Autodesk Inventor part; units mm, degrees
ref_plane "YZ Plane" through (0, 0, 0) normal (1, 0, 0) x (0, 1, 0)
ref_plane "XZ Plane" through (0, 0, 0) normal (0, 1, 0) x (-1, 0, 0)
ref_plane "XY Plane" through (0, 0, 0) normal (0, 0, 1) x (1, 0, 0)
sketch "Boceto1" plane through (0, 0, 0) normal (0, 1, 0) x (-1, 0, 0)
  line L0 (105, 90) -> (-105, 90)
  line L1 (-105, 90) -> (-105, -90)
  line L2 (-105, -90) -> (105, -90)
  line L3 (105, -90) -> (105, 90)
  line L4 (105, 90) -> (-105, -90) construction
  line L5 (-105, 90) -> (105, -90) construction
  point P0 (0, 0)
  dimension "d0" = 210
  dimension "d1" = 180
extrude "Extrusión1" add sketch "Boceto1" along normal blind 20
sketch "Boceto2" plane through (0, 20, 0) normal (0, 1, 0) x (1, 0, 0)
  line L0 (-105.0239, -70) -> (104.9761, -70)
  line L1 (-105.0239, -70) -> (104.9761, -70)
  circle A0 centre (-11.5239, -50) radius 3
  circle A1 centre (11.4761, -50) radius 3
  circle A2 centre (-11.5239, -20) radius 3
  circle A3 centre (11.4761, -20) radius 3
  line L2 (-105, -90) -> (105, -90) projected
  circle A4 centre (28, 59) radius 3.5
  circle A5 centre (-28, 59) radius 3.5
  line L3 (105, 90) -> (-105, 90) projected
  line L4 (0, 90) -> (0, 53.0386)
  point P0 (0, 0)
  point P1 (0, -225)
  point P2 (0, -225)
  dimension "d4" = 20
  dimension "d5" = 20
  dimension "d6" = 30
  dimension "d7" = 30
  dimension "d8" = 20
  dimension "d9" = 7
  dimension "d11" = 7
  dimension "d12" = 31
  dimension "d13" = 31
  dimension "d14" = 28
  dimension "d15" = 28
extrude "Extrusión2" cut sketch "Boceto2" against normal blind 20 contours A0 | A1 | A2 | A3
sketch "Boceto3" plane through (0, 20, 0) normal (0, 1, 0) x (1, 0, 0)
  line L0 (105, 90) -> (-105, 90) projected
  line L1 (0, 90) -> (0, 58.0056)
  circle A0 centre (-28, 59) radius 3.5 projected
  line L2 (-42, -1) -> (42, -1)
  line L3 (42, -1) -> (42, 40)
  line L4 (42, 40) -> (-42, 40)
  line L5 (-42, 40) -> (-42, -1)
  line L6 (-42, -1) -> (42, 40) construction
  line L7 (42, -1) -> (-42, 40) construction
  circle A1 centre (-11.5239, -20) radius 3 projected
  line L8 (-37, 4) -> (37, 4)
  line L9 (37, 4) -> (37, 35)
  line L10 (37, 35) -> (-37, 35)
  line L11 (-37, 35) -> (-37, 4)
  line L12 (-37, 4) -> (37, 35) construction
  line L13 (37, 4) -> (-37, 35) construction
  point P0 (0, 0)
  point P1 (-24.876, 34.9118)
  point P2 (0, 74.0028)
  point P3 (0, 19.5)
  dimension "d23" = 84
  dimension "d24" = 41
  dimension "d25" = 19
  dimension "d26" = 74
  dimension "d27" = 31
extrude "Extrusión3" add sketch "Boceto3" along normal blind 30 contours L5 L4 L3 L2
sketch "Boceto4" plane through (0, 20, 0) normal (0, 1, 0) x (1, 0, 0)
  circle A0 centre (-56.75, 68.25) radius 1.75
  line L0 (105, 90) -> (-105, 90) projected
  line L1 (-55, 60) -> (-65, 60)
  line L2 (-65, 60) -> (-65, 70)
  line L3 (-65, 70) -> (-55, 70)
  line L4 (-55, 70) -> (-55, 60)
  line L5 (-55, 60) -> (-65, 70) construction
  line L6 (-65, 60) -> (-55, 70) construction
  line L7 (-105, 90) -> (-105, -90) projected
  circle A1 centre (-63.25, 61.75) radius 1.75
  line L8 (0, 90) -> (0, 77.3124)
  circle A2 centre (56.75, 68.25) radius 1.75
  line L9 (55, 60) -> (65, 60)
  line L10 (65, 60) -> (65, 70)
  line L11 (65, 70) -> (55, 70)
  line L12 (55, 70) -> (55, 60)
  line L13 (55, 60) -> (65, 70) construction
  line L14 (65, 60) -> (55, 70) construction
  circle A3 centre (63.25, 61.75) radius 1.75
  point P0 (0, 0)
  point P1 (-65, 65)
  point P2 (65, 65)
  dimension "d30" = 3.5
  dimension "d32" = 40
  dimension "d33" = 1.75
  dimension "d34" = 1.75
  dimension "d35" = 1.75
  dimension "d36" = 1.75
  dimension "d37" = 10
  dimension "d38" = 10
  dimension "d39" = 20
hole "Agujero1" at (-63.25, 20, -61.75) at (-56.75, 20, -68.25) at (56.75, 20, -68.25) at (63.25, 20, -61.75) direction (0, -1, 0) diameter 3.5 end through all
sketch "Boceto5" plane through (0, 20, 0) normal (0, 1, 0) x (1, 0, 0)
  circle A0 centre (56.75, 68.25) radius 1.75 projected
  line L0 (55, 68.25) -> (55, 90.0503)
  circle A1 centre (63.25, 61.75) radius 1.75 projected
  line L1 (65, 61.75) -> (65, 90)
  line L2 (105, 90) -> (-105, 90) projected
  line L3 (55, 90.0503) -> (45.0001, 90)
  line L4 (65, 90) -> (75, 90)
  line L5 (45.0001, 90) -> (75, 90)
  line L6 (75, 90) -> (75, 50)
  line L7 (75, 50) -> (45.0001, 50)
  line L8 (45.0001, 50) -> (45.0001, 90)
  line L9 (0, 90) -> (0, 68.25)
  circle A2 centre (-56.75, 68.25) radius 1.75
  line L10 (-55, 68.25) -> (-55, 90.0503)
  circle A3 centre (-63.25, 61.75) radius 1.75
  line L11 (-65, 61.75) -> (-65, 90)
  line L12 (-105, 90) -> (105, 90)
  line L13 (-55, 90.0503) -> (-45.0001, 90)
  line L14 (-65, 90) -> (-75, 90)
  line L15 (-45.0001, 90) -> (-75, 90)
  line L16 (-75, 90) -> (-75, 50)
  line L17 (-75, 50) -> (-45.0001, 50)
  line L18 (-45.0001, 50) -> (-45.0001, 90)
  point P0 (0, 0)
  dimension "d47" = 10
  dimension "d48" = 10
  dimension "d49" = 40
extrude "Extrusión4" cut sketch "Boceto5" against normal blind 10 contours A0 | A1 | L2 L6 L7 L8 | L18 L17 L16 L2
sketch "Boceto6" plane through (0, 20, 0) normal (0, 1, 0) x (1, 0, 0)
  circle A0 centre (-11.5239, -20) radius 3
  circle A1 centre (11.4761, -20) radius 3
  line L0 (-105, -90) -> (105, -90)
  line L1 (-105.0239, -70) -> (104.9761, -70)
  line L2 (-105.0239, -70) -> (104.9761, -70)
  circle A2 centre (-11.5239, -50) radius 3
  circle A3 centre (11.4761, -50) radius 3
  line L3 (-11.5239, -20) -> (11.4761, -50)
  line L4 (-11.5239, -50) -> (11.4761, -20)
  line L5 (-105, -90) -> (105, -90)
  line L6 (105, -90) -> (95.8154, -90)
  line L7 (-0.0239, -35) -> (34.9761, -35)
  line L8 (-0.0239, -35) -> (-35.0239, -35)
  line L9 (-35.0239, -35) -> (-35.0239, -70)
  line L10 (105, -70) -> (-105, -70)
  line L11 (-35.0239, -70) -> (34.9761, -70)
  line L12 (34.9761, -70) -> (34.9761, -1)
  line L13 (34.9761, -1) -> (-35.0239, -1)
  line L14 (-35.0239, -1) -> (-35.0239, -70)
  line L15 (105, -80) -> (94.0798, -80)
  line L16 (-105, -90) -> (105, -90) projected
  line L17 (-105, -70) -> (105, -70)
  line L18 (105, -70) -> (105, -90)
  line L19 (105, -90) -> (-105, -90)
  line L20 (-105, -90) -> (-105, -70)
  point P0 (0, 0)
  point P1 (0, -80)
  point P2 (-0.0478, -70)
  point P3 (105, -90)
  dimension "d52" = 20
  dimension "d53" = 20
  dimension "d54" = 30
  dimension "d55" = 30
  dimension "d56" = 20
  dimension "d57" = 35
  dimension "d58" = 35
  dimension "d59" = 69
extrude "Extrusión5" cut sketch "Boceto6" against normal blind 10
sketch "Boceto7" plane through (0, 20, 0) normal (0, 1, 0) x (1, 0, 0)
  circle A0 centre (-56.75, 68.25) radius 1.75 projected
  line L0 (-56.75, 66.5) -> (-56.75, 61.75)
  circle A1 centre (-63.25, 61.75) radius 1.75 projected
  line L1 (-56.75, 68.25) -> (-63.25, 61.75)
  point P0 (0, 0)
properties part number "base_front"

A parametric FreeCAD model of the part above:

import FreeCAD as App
import Part
import Sketcher
from FreeCAD import Vector


def add_polygon(sketch, points):
    """Adds a closed chain of lines whose ends are joined by coincident constraints."""
    first, n = sketch.GeometryCount, len(points)
    for a, b in zip(points, points[1:] + points[:1]):
        sketch.addGeometry(Part.LineSegment(App.Vector(*a, 0), App.Vector(*b, 0)), False)
    for i in range(n):
        sketch.addConstraint(Sketcher.Constraint("Coincident", first + i, 2, first + (i + 1) % n, 1))

doc = App.newDocument("Part")
params = doc.addObject("Spreadsheet::Sheet", "Params")
for row, (alias, value) in enumerate([
    ("sketch1_width", "210 mm"),
    ("sketch1_height", "180 mm"),
    ("pad1_length", "20 mm"),
    ("sketch2_diameter", "6 mm"),
    ("pocket1_length", "20 mm"),
    ("sketch3_width", "84 mm"),
    ("sketch3_width2", "74 mm"),
    ("sketch3_height", "41 mm"),
    ("sketch3_height2", "31 mm"),
    ("pad2_length", "30 mm"),
    ("sketch4_diameter", "3.5 mm"),
    ("hole_diameter", "3.5 mm"),
    ("sketch5_width", "10 mm"),
    ("sketch5_height", "40 mm"),
    ("sketch5_diameter", "3.5 mm"),
    ("pocket2_length", "10 mm"),
    ("sketch6_height", "69 mm"),
    ("sketch6_height2", "20 mm"),
    ("sketch6_diameter", "6 mm"),
    ("sketch6_width", "210 mm"),
    ("sketch6_width2", "70 mm"),
    ("pocket3_length", "10 mm"),
], start=1):
    params.set(f"A{row}", alias)
    params.set(f"B{row}", "=" + value)
    params.setAlias(f"B{row}", alias)

body = doc.addObject("PartDesign::Body", "Body")

sketch1 = doc.addObject("Sketcher::SketchObject", "Sketch")
body.addObject(sketch1)
sketch1.AttachmentSupport = (doc.XZ_Plane, [""])
sketch1.MapMode = "FlatFace"
add_polygon(sketch1, [(-105, -90), (-105, 90), (105, 90), (105, -90)])
sketch1.addConstraint([
    Sketcher.Constraint("Vertical", 0),
    Sketcher.Constraint("Horizontal", 1),
    Sketcher.Constraint("Vertical", 2),
    Sketcher.Constraint("Horizontal", 3),
    Sketcher.Constraint("Symmetric", 0, 2, 2, 2, -1, 1),
    Sketcher.Constraint("DistanceX", 1, 1, 1, 2, 210.0),
    Sketcher.Constraint("DistanceY", 0, 1, 0, 2, 180.0),
])
sketch1.setExpression("Constraints[9]", "Params.sketch1_width")
sketch1.setExpression("Constraints[10]", "Params.sketch1_height")
pad1 = doc.addObject("PartDesign::Pad", "Pad")
body.addObject(pad1)
pad1.Profile = sketch1
pad1.setExpression("Length", "Params.pad1_length")
pad1.Reversed = True

sketch2 = doc.addObject("Sketcher::SketchObject", "Sketch001")
body.addObject(sketch2)
sketch2.AttachmentSupport = (doc.XZ_Plane, [""])
sketch2.MapMode = "FlatFace"
sketch2.AttachmentOffset = App.Placement(Vector(0, 0, -20), App.Rotation())
sketch2.addGeometry([
    Part.Circle(Vector(-11.5239, 50, 0), Vector(0, 0, 1), 3),
    Part.Circle(Vector(11.4761, 50, 0), Vector(0, 0, 1), 3),
    Part.Circle(Vector(-11.5239, 20, 0), Vector(0, 0, 1), 3),
    Part.Circle(Vector(11.4761, 20, 0), Vector(0, 0, 1), 3),
], False)
sketch2.addConstraint([
    Sketcher.Constraint("Equal", 0, 1),
    Sketcher.Constraint("Equal", 1, 2),
    Sketcher.Constraint("Equal", 2, 3),
    Sketcher.Constraint("Horizontal", 0, 3, 1, 3),
    Sketcher.Constraint("Horizontal", 2, 3, 3, 3),
    Sketcher.Constraint("Vertical", 0, 3, 2, 3),
    Sketcher.Constraint("Vertical", 1, 3, 3, 3),
    Sketcher.Constraint("Diameter", 0, 6.0),
    Sketcher.Constraint("DistanceY", -1, 1, 2, 3, 20.0),
    Sketcher.Constraint("DistanceY", 2, 3, 0, 3, 30.0),
    Sketcher.Constraint("DistanceX", 0, 3, 1, 3, 23.0),
    Sketcher.Constraint("DistanceX", 0, 3, -1, 1, 11.524),
])
sketch2.setExpression("Constraints[7]", "Params.sketch2_diameter")
pocket1 = doc.addObject("PartDesign::Pocket", "Pocket")
body.addObject(pocket1)
pocket1.Profile = sketch2
pocket1.setExpression("Length", "Params.pocket1_length")
pocket1.Reversed = True

sketch3 = doc.addObject("Sketcher::SketchObject", "Sketch002")
body.addObject(sketch3)
sketch3.AttachmentSupport = (doc.XZ_Plane, [""])
sketch3.MapMode = "FlatFace"
sketch3.AttachmentOffset = App.Placement(Vector(0, 0, -20), App.Rotation())
add_polygon(sketch3, [(-42, -40), (-42, 1), (42, 1), (42, -40)])
add_polygon(sketch3, [(37, -4), (-37, -4), (-37, -35), (37, -35)])
sketch3.addConstraint([
    Sketcher.Constraint("Vertical", 0),
    Sketcher.Constraint("Horizontal", 1),
    Sketcher.Constraint("Vertical", 2),
    Sketcher.Constraint("Horizontal", 3),
    Sketcher.Constraint("Horizontal", 4),
    Sketcher.Constraint("Vertical", 5),
    Sketcher.Constraint("Horizontal", 6),
    Sketcher.Constraint("Vertical", 7),
    Sketcher.Constraint("DistanceX", 1, 1, 1, 2, 84.0),
    Sketcher.Constraint("DistanceX", 4, 2, 4, 1, 74.0),
    Sketcher.Constraint("DistanceY", 0, 1, 0, 2, 41.0),
    Sketcher.Constraint("DistanceY", 5, 2, 5, 1, 31.0),
    Sketcher.Constraint("DistanceX", 0, 2, -1, 1, 42.0),
    Sketcher.Constraint("DistanceY", -1, 1, 0, 2, 1.0),
    Sketcher.Constraint("DistanceX", 4, 2, -1, 1, 37.0),
    Sketcher.Constraint("DistanceY", 4, 2, -1, 1, 4.0),
])
sketch3.setExpression("Constraints[16]", "Params.sketch3_width")
sketch3.setExpression("Constraints[17]", "Params.sketch3_width2")
sketch3.setExpression("Constraints[18]", "Params.sketch3_height")
sketch3.setExpression("Constraints[19]", "Params.sketch3_height2")
pad2 = doc.addObject("PartDesign::Pad", "Pad001")
body.addObject(pad2)
pad2.Profile = sketch3
pad2.setExpression("Length", "Params.pad2_length")
pad2.Reversed = True

sketch4 = doc.addObject("Sketcher::SketchObject", "Sketch003")
body.addObject(sketch4)
sketch4.AttachmentSupport = (doc.XZ_Plane, [""])
sketch4.MapMode = "FlatFace"
sketch4.AttachmentOffset = App.Placement(Vector(0, 0, -20), App.Rotation())
sketch4.addGeometry([
    Part.Circle(Vector(-63.25, -61.75, 0), Vector(0, 0, 1), 1.75),
    Part.Circle(Vector(-56.75, -68.25, 0), Vector(0, 0, 1), 1.75),
    Part.Circle(Vector(56.75, -68.25, 0), Vector(0, 0, 1), 1.75),
    Part.Circle(Vector(63.25, -61.75, 0), Vector(0, 0, 1), 1.75),
], False)
sketch4.addConstraint([
    Sketcher.Constraint("Equal", 0, 1),
    Sketcher.Constraint("Equal", 1, 2),
    Sketcher.Constraint("Equal", 2, 3),
    Sketcher.Constraint("Symmetric", 1, 3, 2, 3, -2),
    Sketcher.Constraint("Symmetric", 0, 3, 3, 3, -2),
    Sketcher.Constraint("Diameter", 0, 3.5),
    Sketcher.Constraint("DistanceX", 0, 3, 2, 3, 120.0),
    Sketcher.Constraint("DistanceX", 0, 3, 1, 3, 6.5),
    Sketcher.Constraint("DistanceY", 1, 3, 0, 3, 6.5),
    Sketcher.Constraint("DistanceY", 0, 3, -1, 1, 61.75),
])
sketch4.setExpression("Constraints[5]", "Params.sketch4_diameter")
doc.recompute()
hole = doc.addObject("PartDesign::Hole", "Hole")
body.addObject(hole)
hole.Profile = sketch4
hole.ThreadType = "None"
hole.setExpression("Diameter", "Params.hole_diameter")
hole.DepthType = "ThroughAll"
hole.Reversed = True

sketch5 = doc.addObject("Sketcher::SketchObject", "Sketch004")
body.addObject(sketch5)
sketch5.AttachmentSupport = (doc.XZ_Plane, [""])
sketch5.MapMode = "FlatFace"
sketch5.AttachmentOffset = App.Placement(Vector(0, 0, -20), App.Rotation())
add_polygon(sketch5, [(65, -90), (55, -90), (45.0001, -90), (45.0001, -50), (75, -50), (75, -90)])
add_polygon(sketch5, [(-45.0001, -50), (-45.0001, -90), (-55, -90), (-65, -90), (-75, -90), (-75, -50)])
sketch5.addGeometry(Part.Circle(Vector(-63.25, -61.75, 0), Vector(0, 0, 1), 1.75), False)
sketch5.addGeometry(Part.Circle(Vector(-56.75, -68.25, 0), Vector(0, 0, 1), 1.75), False)
sketch5.addConstraint([
    Sketcher.Constraint("Horizontal", 0),
    Sketcher.Constraint("Horizontal", 1),
    Sketcher.Constraint("Vertical", 2),
    Sketcher.Constraint("Horizontal", 3),
    Sketcher.Constraint("Vertical", 4),
    Sketcher.Constraint("Horizontal", 5),
    Sketcher.Constraint("Vertical", 6),
    Sketcher.Constraint("Horizontal", 7),
    Sketcher.Constraint("Horizontal", 8),
    Sketcher.Constraint("Horizontal", 9),
    Sketcher.Constraint("Vertical", 10),
    Sketcher.Constraint("Horizontal", 11),
    Sketcher.Constraint("Equal", 12, 13),
    Sketcher.Constraint("Symmetric", 1, 2, 6, 2, -2),
    Sketcher.Constraint("Symmetric", 3, 2, 10, 2, -2),
    Sketcher.Constraint("Equal", 0, 1),
    Sketcher.Constraint("Equal", 1, 5),
    Sketcher.Constraint("Equal", 5, 7),
    Sketcher.Constraint("Equal", 7, 8),
    Sketcher.Constraint("DistanceX", 0, 2, 0, 1, 10.0),
    Sketcher.Constraint("DistanceY", 2, 1, 2, 2, 40.0),
    Sketcher.Constraint("Diameter", 12, 3.5),
    Sketcher.Constraint("DistanceX", -1, 1, 0, 2, 55.0),
    Sketcher.Constraint("DistanceY", 0, 2, -1, 1, 90.0),
    Sketcher.Constraint("DistanceX", 12, 3, 13, 3, 6.5),
    Sketcher.Constraint("DistanceY", 13, 3, 12, 3, 6.5),
    Sketcher.Constraint("DistanceX", 12, 3, -1, 1, 63.25),
    Sketcher.Constraint("DistanceY", 12, 3, -1, 1, 61.75),
])
sketch5.setExpression("Constraints[31]", "Params.sketch5_width")
sketch5.setExpression("Constraints[32]", "Params.sketch5_height")
sketch5.setExpression("Constraints[33]", "Params.sketch5_diameter")
pocket2 = doc.addObject("PartDesign::Pocket", "Pocket001")
body.addObject(pocket2)
pocket2.Profile = sketch5
pocket2.setExpression("Length", "Params.pocket2_length")
pocket2.Reversed = True

sketch6 = doc.addObject("Sketcher::SketchObject", "Sketch005")
body.addObject(sketch6)
sketch6.AttachmentSupport = (doc.XZ_Plane, [""])
sketch6.MapMode = "FlatFace"
sketch6.AttachmentOffset = App.Placement(Vector(0, 0, -20), App.Rotation())
add_polygon(sketch6, [(-35.0239, 1), (-35.0239, 70), (-105, 70), (-105, 90), (105, 90), (105, 70), (34.9761, 70), (34.9761, 1)])
sketch6.addGeometry(Part.Circle(Vector(-11.5239, 20, 0), Vector(0, 0, 1), 3), False)
sketch6.addGeometry(Part.Circle(Vector(11.4761, 20, 0), Vector(0, 0, 1), 3), False)
sketch6.addGeometry(Part.Circle(Vector(-11.5239, 50, 0), Vector(0, 0, 1), 3), False)
sketch6.addGeometry(Part.Circle(Vector(11.4761, 50, 0), Vector(0, 0, 1), 3), False)
sketch6.addConstraint([
    Sketcher.Constraint("Vertical", 0),
    Sketcher.Constraint("Horizontal", 1),
    Sketcher.Constraint("Vertical", 2),
    Sketcher.Constraint("Horizontal", 3),
    Sketcher.Constraint("Vertical", 4),
    Sketcher.Constraint("Horizontal", 5),
    Sketcher.Constraint("Vertical", 6),
    Sketcher.Constraint("Horizontal", 7),
    Sketcher.Constraint("Equal", 8, 9),
    Sketcher.Constraint("Equal", 9, 10),
    Sketcher.Constraint("Equal", 10, 11),
    Sketcher.Constraint("Symmetric", 1, 2, 4, 2, -2),
    Sketcher.Constraint("Horizontal", 8, 3, 9, 3),
    Sketcher.Constraint("Horizontal", 10, 3, 11, 3),
    Sketcher.Constraint("Vertical", 8, 3, 10, 3),
    Sketcher.Constraint("Vertical", 9, 3, 11, 3),
    Sketcher.Constraint("DistanceY", 0, 1, 0, 2, 69.0),
    Sketcher.Constraint("DistanceY", 2, 1, 2, 2, 20.0),
    Sketcher.Constraint("Diameter", 8, 6.0),
    Sketcher.Constraint("DistanceY", -1, 1, 8, 3, 20.0),
    Sketcher.Constraint("DistanceY", 8, 3, 10, 3, 30.0),
    Sketcher.Constraint("DistanceY", 10, 3, 0, 2, 20.0),
    Sketcher.Constraint("DistanceX", 3, 1, 3, 2, 210.0),
    Sketcher.Constraint("DistanceX", 7, 2, 7, 1, 70.0),
    Sketcher.Constraint("DistanceX", 8, 3, 9, 3, 23.0),
    Sketcher.Constraint("DistanceX", 0, 2, 10, 3, 23.5),
    Sketcher.Constraint("DistanceX", 1, 2, 1, 1, 69.976),
])
sketch6.setExpression("Constraints[24]", "Params.sketch6_height")
sketch6.setExpression("Constraints[25]", "Params.sketch6_height2")
sketch6.setExpression("Constraints[26]", "Params.sketch6_diameter")
sketch6.setExpression("Constraints[30]", "Params.sketch6_width")
sketch6.setExpression("Constraints[31]", "Params.sketch6_width2")
pocket3 = doc.addObject("PartDesign::Pocket", "Pocket002")
body.addObject(pocket3)
pocket3.Profile = sketch6
pocket3.setExpression("Length", "Params.pocket3_length")
pocket3.Reversed = True

doc.recompute()
